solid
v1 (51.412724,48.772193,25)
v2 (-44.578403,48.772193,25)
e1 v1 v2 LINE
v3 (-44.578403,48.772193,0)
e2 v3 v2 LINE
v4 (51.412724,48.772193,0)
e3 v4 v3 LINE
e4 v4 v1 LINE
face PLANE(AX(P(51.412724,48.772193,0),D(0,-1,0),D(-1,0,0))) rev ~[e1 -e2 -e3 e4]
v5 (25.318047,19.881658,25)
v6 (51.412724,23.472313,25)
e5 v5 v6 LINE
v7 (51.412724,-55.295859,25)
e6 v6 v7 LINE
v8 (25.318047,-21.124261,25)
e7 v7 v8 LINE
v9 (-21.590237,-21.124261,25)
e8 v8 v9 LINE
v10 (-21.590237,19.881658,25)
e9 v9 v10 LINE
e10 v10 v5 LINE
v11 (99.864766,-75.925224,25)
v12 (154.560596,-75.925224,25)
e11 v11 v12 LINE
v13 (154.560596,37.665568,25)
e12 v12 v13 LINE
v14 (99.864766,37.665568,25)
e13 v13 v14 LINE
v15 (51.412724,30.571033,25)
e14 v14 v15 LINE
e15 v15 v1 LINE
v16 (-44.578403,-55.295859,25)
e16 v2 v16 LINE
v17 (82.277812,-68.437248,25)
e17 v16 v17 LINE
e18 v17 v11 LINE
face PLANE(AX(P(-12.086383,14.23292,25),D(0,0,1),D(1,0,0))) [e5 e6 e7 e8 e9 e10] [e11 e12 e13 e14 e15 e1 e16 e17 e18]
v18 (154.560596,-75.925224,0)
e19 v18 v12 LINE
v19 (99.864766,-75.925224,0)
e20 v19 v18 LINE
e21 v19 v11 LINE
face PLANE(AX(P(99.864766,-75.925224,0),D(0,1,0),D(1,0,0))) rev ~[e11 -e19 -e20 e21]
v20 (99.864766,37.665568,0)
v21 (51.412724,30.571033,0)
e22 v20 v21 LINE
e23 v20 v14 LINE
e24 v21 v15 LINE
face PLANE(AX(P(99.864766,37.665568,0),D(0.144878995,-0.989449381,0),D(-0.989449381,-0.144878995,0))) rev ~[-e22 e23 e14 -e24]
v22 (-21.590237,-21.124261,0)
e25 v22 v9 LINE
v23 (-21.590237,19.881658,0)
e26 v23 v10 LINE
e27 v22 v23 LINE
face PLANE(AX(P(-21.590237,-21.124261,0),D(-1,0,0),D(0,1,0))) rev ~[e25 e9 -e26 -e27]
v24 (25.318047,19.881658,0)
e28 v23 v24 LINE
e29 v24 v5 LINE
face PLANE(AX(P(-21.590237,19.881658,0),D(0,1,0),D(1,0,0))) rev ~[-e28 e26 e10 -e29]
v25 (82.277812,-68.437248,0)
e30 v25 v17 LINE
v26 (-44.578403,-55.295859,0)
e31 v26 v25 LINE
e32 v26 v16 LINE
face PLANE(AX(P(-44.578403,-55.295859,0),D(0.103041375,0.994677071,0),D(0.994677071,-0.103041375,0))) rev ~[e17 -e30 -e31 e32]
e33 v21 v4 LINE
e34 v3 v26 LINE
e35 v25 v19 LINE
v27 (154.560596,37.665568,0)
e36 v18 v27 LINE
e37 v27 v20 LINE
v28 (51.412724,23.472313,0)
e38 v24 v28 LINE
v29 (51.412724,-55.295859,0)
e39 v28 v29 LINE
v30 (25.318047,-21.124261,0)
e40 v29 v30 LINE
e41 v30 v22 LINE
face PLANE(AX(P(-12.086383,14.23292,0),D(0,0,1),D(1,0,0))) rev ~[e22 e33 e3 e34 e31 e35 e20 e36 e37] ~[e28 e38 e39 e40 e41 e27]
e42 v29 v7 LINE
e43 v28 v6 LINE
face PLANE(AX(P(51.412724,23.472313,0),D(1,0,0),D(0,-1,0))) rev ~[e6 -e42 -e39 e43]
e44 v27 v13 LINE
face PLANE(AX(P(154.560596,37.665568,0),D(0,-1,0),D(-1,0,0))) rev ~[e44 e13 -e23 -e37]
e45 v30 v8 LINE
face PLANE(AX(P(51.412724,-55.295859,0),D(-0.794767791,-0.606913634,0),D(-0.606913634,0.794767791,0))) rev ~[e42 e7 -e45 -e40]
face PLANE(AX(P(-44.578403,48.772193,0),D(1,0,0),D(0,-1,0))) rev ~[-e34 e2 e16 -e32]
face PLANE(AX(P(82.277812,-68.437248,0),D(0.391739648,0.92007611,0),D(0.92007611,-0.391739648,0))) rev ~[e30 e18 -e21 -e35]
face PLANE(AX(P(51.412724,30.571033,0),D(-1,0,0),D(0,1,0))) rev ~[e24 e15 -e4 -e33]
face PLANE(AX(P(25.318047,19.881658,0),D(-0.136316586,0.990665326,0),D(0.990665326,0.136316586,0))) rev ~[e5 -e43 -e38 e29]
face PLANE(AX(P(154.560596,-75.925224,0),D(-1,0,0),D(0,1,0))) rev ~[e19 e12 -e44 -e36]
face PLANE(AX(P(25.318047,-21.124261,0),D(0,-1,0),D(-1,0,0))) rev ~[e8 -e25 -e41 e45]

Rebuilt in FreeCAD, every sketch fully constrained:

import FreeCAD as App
import Part
import Sketcher
Q = App.Units.Quantity


def add_polygon(sketch, points):
    """Adds a closed chain of lines whose ends are joined by coincident constraints."""
    first, n = sketch.GeometryCount, len(points)
    for a, b in zip(points, points[1:] + points[:1]):
        sketch.addGeometry(Part.LineSegment(App.Vector(*a, 0), App.Vector(*b, 0)), False)
    for i in range(n):
        sketch.addConstraint(Sketcher.Constraint("Coincident", first + i, 2, first + (i + 1) % n, 1))

doc = App.newDocument("Part")
body = doc.addObject("PartDesign::Body", "Body")

# Sketch on XY plane
sketch1 = body.newObject("Sketcher::SketchObject", "Sketch")
sketch1.AttachmentSupport = (doc.getObject("XY_Plane"), [""])
sketch1.MapMode = "FlatFace"
add_polygon(sketch1, [(51.412724, 48.772193), (-44.578403, 48.772193), (-44.578403, -55.295859), (82.277812, -68.437248), (99.864766, -75.925224), (154.560596, -75.925224), (154.560596, 37.665568), (99.864766, 37.665568), (51.412724, 30.571033)])  # lines 0-8
add_polygon(sketch1, [(51.412724, -55.295859), (25.318047, -21.12426), (-21.590237, -21.12426), (-21.590237, 19.881658), (25.318047, 19.881658), (51.412724, 23.472313)])  # lines 9-14
sketch1.addConstraint([
    Sketcher.Constraint("Horizontal", 0),
    Sketcher.Constraint("Vertical", 1),
    Sketcher.Constraint("Horizontal", 4),
    Sketcher.Constraint("Vertical", 5),
    Sketcher.Constraint("Horizontal", 6),
    Sketcher.Constraint("Vertical", 8),
    Sketcher.Constraint("Horizontal", 10),
    Sketcher.Constraint("Vertical", 11),
    Sketcher.Constraint("Horizontal", 12),
    Sketcher.Constraint("Vertical", 14),
    Sketcher.Constraint("Horizontal", 1, 2, 14, 2),
    Sketcher.Constraint("Vertical", 3, 2, 6, 2),
    Sketcher.Constraint("Vertical", 9, 2, 12, 2),
    Sketcher.Constraint("Vertical", 8, 2, 13, 2),
    Sketcher.Constraint("DistanceX", 1, 2, 4, 2, Q("199.138999 mm")),
    Sketcher.Constraint("Distance", 9, Q("42.995701 mm")),
    Sketcher.Constraint("DistanceX", 4, 1, 4, 2, Q("54.69583 mm")),
    Sketcher.Constraint("DistanceY", 5, 1, 5, 2, Q("113.590792 mm")),
    Sketcher.Constraint("DistanceY", 8, 1, 8, 2, Q("18.20116 mm")),
    Sketcher.Constraint("DistanceY", 11, 1, 11, 2, Q("41.005919 mm")),
    Sketcher.Constraint("DistanceY", 14, 2, 14, 1, Q("78.768172 mm")),
    Sketcher.Constraint("DistanceY", 1, 2, 9, 2, Q("34.171598 mm")),
    Sketcher.Constraint("DistanceX", 0, 2, 0, 1, Q("95.991127 mm")),
    Sketcher.Constraint("DistanceX", 10, 2, 10, 1, Q("46.908284 mm")),
    Sketcher.Constraint("DistanceY", 1, 2, 1, 1, Q("104.068052 mm")),
    Sketcher.Constraint("DistanceY", 1, 2, -1, 1, Q("55.295859 mm")),
    Sketcher.Constraint("DistanceX", -1, 1, 2, 2, Q("82.277812 mm")),
    Sketcher.Constraint("DistanceY", 2, 2, -1, 1, Q("68.437248 mm")),
    Sketcher.Constraint("DistanceY", -1, 1, 5, 2, Q("37.665568 mm")),
    Sketcher.Constraint("Distance", 2, Q("127.535075 mm")),
])
pad1 = body.newObject("PartDesign::Pad", "Pad")
pad1.Profile = sketch1
pad1.Length = 25

doc.recompute()
